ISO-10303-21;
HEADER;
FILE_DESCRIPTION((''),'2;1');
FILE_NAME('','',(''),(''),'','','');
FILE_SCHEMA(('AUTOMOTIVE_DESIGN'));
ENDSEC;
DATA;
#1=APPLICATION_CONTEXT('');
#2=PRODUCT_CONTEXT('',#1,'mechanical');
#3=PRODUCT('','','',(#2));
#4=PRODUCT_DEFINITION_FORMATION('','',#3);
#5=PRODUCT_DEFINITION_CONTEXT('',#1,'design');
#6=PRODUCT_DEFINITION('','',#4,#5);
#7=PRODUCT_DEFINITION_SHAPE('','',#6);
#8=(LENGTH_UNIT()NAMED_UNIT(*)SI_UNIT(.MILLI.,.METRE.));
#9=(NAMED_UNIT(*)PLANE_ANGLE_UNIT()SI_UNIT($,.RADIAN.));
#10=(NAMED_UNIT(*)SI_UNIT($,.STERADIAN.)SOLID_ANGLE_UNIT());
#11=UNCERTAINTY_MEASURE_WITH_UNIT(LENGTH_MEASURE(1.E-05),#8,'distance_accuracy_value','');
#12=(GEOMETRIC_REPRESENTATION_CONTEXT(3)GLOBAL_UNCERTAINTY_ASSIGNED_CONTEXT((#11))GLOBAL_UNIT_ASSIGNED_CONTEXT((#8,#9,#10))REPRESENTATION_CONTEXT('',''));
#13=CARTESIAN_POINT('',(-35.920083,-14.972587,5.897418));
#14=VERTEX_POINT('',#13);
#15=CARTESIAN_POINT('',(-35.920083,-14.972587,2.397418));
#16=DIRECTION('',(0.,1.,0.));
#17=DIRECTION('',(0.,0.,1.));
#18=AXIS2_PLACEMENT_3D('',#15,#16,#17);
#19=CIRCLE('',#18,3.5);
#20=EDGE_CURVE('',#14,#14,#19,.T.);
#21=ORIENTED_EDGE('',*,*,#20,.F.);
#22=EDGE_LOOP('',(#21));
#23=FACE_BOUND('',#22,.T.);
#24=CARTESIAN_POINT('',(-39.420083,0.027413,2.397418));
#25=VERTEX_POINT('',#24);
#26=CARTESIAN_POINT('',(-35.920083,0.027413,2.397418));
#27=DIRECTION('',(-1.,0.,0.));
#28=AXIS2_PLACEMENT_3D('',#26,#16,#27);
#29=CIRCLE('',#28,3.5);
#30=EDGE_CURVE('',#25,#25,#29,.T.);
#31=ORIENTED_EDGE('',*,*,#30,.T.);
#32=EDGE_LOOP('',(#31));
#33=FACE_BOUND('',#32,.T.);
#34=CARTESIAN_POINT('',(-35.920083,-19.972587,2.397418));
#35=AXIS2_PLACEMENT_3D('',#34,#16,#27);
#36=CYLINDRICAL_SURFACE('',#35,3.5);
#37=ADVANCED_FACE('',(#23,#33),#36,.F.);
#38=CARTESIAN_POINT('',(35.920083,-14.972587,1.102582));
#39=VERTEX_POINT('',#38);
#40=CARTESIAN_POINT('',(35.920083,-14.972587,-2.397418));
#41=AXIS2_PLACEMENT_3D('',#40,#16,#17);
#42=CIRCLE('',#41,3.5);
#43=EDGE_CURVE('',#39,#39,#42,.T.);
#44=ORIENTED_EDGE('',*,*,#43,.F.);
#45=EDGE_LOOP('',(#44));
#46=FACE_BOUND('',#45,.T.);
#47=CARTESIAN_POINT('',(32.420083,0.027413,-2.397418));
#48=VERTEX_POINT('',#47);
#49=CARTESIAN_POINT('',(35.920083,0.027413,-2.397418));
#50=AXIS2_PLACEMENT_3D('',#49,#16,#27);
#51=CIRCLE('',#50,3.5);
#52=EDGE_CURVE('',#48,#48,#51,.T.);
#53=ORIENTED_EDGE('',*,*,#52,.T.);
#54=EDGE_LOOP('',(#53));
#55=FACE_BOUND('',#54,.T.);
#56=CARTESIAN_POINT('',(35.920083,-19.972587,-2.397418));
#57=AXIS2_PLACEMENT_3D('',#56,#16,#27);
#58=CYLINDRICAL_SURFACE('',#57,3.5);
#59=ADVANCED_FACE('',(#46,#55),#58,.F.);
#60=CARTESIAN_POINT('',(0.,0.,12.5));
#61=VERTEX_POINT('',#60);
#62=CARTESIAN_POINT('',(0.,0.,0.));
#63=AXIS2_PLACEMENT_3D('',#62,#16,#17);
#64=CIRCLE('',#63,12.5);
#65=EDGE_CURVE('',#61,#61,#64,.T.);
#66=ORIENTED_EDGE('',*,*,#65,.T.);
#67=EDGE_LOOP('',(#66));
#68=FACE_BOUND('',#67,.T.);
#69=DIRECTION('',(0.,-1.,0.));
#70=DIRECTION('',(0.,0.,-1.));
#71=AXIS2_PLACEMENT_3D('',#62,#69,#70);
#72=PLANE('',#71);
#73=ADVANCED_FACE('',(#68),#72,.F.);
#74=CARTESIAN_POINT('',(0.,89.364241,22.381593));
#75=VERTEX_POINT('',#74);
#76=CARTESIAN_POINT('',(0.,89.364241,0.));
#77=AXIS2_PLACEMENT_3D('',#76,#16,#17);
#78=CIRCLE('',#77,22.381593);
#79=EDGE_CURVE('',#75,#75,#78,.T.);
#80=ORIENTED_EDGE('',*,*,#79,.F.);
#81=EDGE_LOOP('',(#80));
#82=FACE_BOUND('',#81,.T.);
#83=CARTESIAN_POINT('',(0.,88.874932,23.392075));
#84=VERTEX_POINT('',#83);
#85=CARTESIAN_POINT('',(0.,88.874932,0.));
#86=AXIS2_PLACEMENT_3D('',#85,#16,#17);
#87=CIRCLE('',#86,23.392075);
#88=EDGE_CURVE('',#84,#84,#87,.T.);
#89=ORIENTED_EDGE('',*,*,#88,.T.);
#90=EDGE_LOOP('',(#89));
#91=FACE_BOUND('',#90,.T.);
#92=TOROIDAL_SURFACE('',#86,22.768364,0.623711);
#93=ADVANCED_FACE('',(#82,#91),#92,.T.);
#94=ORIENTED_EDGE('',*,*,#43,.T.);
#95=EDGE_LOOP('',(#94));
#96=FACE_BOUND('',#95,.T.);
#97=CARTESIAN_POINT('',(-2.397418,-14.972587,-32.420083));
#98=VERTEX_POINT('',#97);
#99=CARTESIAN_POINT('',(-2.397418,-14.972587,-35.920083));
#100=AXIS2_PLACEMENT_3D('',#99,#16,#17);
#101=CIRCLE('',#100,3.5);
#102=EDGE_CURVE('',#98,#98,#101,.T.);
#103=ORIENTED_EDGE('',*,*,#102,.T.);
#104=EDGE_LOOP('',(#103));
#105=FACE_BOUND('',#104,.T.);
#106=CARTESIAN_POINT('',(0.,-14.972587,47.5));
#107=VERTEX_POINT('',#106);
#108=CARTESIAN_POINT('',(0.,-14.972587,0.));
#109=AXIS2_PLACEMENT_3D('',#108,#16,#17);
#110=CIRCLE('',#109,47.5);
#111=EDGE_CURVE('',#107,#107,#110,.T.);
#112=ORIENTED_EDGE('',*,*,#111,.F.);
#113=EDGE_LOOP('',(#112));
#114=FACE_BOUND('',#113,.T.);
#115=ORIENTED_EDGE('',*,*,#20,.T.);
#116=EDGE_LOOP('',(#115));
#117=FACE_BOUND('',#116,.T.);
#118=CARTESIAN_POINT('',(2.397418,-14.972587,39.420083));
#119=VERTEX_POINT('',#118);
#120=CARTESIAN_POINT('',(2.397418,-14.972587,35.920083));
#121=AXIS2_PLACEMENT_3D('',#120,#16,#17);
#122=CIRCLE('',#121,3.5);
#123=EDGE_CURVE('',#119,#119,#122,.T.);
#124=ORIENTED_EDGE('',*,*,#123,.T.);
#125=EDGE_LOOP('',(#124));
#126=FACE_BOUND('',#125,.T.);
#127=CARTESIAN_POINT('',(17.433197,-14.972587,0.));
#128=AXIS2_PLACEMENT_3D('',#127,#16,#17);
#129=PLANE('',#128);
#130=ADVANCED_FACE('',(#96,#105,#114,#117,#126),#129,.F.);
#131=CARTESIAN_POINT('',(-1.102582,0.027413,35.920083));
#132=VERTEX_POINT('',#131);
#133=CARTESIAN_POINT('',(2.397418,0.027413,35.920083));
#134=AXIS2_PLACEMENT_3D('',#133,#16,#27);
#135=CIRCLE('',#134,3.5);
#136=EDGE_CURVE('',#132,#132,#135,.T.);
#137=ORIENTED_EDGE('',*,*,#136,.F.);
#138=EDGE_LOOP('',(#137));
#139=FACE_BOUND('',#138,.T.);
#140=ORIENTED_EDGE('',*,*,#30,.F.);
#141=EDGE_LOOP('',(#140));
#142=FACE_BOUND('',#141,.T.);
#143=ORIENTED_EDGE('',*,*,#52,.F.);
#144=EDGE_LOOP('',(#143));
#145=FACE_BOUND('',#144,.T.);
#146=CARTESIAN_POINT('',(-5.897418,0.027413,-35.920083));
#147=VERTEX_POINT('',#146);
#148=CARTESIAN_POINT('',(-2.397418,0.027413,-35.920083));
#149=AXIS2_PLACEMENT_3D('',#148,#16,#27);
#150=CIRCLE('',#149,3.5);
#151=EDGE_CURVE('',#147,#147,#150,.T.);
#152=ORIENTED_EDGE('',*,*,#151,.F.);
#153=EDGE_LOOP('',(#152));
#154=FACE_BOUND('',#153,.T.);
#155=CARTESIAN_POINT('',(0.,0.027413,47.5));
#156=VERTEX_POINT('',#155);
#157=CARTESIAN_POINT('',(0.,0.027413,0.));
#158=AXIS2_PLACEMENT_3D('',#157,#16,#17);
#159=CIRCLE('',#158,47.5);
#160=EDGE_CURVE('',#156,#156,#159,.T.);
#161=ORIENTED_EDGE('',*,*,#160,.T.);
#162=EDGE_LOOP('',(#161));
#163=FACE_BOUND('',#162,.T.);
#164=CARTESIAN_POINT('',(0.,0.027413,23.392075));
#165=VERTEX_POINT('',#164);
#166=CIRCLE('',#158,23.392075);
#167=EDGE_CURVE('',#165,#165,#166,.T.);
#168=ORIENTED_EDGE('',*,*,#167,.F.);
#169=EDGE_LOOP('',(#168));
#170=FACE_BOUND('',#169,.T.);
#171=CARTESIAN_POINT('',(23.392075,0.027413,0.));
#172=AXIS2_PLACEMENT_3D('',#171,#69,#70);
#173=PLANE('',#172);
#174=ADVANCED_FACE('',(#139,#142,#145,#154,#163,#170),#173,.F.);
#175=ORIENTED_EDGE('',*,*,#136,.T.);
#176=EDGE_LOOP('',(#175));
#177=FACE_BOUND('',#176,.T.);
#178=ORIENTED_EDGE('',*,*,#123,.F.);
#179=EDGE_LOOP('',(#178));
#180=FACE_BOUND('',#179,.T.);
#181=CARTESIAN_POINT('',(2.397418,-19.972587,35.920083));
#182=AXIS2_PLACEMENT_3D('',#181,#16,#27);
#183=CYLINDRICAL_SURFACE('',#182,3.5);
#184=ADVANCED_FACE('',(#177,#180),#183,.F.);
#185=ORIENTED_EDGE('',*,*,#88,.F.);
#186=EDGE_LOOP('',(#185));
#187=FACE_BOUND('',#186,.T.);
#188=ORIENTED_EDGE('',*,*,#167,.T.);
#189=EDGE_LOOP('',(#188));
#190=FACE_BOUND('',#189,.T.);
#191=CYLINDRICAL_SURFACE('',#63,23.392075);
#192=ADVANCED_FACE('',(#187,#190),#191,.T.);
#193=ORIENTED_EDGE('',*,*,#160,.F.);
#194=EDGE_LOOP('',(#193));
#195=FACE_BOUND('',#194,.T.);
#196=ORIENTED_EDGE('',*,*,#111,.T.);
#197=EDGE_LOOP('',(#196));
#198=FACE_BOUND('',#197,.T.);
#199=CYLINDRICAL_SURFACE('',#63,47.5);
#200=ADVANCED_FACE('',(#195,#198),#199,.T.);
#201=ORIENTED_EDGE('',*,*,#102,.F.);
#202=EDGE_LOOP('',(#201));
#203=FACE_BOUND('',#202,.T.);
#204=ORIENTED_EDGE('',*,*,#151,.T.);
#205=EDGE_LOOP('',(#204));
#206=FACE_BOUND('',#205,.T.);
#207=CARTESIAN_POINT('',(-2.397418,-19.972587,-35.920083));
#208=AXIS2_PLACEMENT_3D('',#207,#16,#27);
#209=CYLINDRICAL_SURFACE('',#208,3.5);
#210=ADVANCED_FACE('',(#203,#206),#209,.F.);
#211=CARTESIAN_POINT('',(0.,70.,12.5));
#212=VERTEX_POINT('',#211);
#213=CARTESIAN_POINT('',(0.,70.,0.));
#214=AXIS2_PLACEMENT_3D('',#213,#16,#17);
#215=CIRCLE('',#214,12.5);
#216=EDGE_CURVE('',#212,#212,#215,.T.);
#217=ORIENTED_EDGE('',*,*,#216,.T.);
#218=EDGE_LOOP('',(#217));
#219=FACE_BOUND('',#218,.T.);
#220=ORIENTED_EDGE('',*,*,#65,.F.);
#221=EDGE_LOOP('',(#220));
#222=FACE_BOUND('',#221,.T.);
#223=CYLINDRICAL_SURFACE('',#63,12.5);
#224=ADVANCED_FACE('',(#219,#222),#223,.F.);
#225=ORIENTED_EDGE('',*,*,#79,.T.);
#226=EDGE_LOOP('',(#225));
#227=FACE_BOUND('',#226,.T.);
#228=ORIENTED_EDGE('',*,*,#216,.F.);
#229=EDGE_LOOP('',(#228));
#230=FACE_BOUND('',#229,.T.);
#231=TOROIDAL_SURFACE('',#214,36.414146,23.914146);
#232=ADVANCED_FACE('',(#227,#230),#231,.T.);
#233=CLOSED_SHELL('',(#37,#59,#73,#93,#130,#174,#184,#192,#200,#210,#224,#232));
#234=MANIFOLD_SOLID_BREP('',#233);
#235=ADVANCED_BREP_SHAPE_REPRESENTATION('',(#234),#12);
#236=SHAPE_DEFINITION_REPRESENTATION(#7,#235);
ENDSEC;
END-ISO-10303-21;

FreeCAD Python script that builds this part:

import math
import FreeCAD as App
import Part
import Sketcher
Q = App.Units.Quantity

doc = App.newDocument("Part")
params = doc.addObject("Spreadsheet::Sheet", "Params")
for row, (alias, value) in enumerate([
    ("sketch1_height", "15 mm"),
    ("sketch1_height2", "70 mm"),
    ("sketch1_width", "12.5 mm"),
    ("sketch1_width2", "47.5 mm"),
    ("revolution_angle", "360 deg"),
    ("sketch2_diameter", "7 mm"),
    ("pocket1_length", "20 mm"),
], start=1):
    params.set(f"A{row}", alias)
    params.set(f"B{row}", "=" + value)
    params.setAlias(f"B{row}", alias)

body = doc.addObject("PartDesign::Body", "Body")

sketch1 = body.newObject("Sketcher::SketchObject", "Sketch")
sketch1.AttachmentSupport = (doc.getObject("XY_Plane"), [""])
sketch1.MapMode = "FlatFace"
sketch1.addGeometry(Part.LineSegment(App.Vector(47.5, -14.972587, 0), App.Vector(47.5, 0.027413, 0)), False)
sketch1.addGeometry(Part.LineSegment(App.Vector(47.5, 0.027413, 0), App.Vector(23.392075, 0.027413, 0)), False)
sketch1.addGeometry(Part.LineSegment(App.Vector(23.392075, 0.027413, 0), App.Vector(23.392075, 88.874932, 0)), False)
sketch1.addGeometry(Part.ArcOfCircle(Part.Circle(App.Vector(22.768364, 88.874932, 0), App.Vector(0, 0, 1), 0.623711), math.radians(0), math.radians(128.324351)), False)
sketch1.addGeometry(Part.ArcOfCircle(Part.Circle(App.Vector(36.414146, 70, 0), App.Vector(0, 0, 1), 23.914146), math.radians(125.929461), math.radians(180)), False)
sketch1.addGeometry(Part.LineSegment(App.Vector(12.5, 70, 0), App.Vector(12.5, 0, 0)), False)
sketch1.addGeometry(Part.LineSegment(App.Vector(12.5, 0, 0), App.Vector(0, 0, 0)), False)
sketch1.addGeometry(Part.LineSegment(App.Vector(0, 0, 0), App.Vector(0, -14.972587, 0)), False)
sketch1.addGeometry(Part.LineSegment(App.Vector(0, -14.972587, 0), App.Vector(47.5, -14.972587, 0)), False)
sketch1.addConstraint(Sketcher.Constraint("Coincident", 0, 2, 1, 1))
sketch1.addConstraint(Sketcher.Constraint("Coincident", 1, 2, 2, 1))
sketch1.addConstraint(Sketcher.Constraint("Tangent", 2, 2, 3, 1))
sketch1.addConstraint(Sketcher.Constraint("Coincident", 3, 2, 4, 1))
sketch1.addConstraint(Sketcher.Constraint("Tangent", 4, 2, 5, 1))
sketch1.addConstraint(Sketcher.Constraint("Coincident", 5, 2, 6, 1))
sketch1.addConstraint(Sketcher.Constraint("Coincident", 6, 2, 7, 1))
sketch1.addConstraint(Sketcher.Constraint("Coincident", 7, 2, 8, 1))
sketch1.addConstraint(Sketcher.Constraint("Coincident", 8, 2, 0, 1))
sketch1.addConstraint(Sketcher.Constraint("Vertical", 0))
sketch1.addConstraint(Sketcher.Constraint("Horizontal", 1))
sketch1.addConstraint(Sketcher.Constraint("Vertical", 2))
sketch1.addConstraint(Sketcher.Constraint("Vertical", 5))
sketch1.addConstraint(Sketcher.Constraint("Horizontal", 6))
sketch1.addConstraint(Sketcher.Constraint("Vertical", 7))
sketch1.addConstraint(Sketcher.Constraint("Horizontal", 8))
sketch1.addConstraint(Sketcher.Constraint("Coincident", 6, 2, -1, 1))
sketch1.addConstraint(Sketcher.Constraint("DistanceY", 0, 1, 0, 2, Q("15 mm")))
sketch1.addConstraint(Sketcher.Constraint("DistanceY", 5, 2, 5, 1, Q("70 mm")))
sketch1.addConstraint(Sketcher.Constraint("DistanceX", 6, 2, 6, 1, Q("12.5 mm")))
sketch1.addConstraint(Sketcher.Constraint("DistanceX", 8, 1, 8, 2, Q("47.5 mm")))
sketch1.addConstraint(Sketcher.Constraint("Radius", 3, Q("0.623711 mm")))
sketch1.addConstraint(Sketcher.Constraint("Radius", 4, Q("23.914146 mm")))
sketch1.addConstraint(Sketcher.Constraint("DistanceY", 2, 1, 2, 2, Q("88.847519 mm")))
sketch1.addConstraint(Sketcher.Constraint("DistanceX", 1, 2, 1, 1, Q("24.107925 mm")))
sketch1.addConstraint(Sketcher.Constraint("DistanceY", 7, 2, 7, 1, Q("14.972587 mm")))
sketch1.setExpression("Constraints[17]", "Params.sketch1_height")
sketch1.setExpression("Constraints[18]", "Params.sketch1_height2")
sketch1.setExpression("Constraints[19]", "Params.sketch1_width")
sketch1.setExpression("Constraints[20]", "Params.sketch1_width2")
revolution = body.newObject("PartDesign::Revolution", "Revolution")
revolution.Profile = sketch1
revolution.ReferenceAxis = (sketch1, ["V_Axis"])
revolution.setExpression("Angle", "Params.revolution_angle")

sketch2 = body.newObject("Sketcher::SketchObject", "Sketch001")
sketch2.AttachmentSupport = (doc.getObject("XZ_Plane"), [""])
sketch2.MapMode = "FlatFace"
sketch2.AttachmentOffset = App.Placement(App.Vector(0, 0, -0.027413), App.Rotation())
sketch2.addGeometry(Part.Circle(App.Vector(-2.397418, -35.920083, 0), App.Vector(0, 0, 1), 3.5), False)
sketch2.addGeometry(Part.Circle(App.Vector(-35.920083, 2.397418, 0), App.Vector(0, 0, 1), 3.5), False)
sketch2.addGeometry(Part.Circle(App.Vector(2.397418, 35.920083, 0), App.Vector(0, 0, 1), 3.5), False)
sketch2.addGeometry(Part.Circle(App.Vector(35.920083, -2.397418, 0), App.Vector(0, 0, 1), 3.5), False)
sketch2.addConstraint(Sketcher.Constraint("Equal", 0, 1))
sketch2.addConstraint(Sketcher.Constraint("Equal", 1, 2))
sketch2.addConstraint(Sketcher.Constraint("Equal", 2, 3))
sketch2.addConstraint(Sketcher.Constraint("Symmetric", 0, 3, 2, 3, -1, 1))
sketch2.addConstraint(Sketcher.Constraint("Symmetric", 1, 3, 3, 3, -1, 1))
sketch2.addConstraint(Sketcher.Constraint("Diameter", 0, Q("7 mm")))
sketch2.addConstraint(Sketcher.Constraint("DistanceY", 0, 3, 1, 3, Q("38.317501 mm")))
sketch2.addConstraint(Sketcher.Constraint("DistanceX", 1, 3, 2, 3, Q("38.317501 mm")))
sketch2.addConstraint(Sketcher.Constraint("DistanceX", 0, 3, -1, 1, Q("2.397418 mm")))
sketch2.addConstraint(Sketcher.Constraint("DistanceY", -1, 1, 1, 3, Q("2.397418 mm")))
sketch2.setExpression("Constraints[5]", "Params.sketch2_diameter")
pocket1 = body.newObject("PartDesign::Pocket", "Pocket")
pocket1.Profile = sketch2
pocket1.setExpression("Length", "Params.pocket1_length")
pocket1.Reversed = True

doc.recompute()
